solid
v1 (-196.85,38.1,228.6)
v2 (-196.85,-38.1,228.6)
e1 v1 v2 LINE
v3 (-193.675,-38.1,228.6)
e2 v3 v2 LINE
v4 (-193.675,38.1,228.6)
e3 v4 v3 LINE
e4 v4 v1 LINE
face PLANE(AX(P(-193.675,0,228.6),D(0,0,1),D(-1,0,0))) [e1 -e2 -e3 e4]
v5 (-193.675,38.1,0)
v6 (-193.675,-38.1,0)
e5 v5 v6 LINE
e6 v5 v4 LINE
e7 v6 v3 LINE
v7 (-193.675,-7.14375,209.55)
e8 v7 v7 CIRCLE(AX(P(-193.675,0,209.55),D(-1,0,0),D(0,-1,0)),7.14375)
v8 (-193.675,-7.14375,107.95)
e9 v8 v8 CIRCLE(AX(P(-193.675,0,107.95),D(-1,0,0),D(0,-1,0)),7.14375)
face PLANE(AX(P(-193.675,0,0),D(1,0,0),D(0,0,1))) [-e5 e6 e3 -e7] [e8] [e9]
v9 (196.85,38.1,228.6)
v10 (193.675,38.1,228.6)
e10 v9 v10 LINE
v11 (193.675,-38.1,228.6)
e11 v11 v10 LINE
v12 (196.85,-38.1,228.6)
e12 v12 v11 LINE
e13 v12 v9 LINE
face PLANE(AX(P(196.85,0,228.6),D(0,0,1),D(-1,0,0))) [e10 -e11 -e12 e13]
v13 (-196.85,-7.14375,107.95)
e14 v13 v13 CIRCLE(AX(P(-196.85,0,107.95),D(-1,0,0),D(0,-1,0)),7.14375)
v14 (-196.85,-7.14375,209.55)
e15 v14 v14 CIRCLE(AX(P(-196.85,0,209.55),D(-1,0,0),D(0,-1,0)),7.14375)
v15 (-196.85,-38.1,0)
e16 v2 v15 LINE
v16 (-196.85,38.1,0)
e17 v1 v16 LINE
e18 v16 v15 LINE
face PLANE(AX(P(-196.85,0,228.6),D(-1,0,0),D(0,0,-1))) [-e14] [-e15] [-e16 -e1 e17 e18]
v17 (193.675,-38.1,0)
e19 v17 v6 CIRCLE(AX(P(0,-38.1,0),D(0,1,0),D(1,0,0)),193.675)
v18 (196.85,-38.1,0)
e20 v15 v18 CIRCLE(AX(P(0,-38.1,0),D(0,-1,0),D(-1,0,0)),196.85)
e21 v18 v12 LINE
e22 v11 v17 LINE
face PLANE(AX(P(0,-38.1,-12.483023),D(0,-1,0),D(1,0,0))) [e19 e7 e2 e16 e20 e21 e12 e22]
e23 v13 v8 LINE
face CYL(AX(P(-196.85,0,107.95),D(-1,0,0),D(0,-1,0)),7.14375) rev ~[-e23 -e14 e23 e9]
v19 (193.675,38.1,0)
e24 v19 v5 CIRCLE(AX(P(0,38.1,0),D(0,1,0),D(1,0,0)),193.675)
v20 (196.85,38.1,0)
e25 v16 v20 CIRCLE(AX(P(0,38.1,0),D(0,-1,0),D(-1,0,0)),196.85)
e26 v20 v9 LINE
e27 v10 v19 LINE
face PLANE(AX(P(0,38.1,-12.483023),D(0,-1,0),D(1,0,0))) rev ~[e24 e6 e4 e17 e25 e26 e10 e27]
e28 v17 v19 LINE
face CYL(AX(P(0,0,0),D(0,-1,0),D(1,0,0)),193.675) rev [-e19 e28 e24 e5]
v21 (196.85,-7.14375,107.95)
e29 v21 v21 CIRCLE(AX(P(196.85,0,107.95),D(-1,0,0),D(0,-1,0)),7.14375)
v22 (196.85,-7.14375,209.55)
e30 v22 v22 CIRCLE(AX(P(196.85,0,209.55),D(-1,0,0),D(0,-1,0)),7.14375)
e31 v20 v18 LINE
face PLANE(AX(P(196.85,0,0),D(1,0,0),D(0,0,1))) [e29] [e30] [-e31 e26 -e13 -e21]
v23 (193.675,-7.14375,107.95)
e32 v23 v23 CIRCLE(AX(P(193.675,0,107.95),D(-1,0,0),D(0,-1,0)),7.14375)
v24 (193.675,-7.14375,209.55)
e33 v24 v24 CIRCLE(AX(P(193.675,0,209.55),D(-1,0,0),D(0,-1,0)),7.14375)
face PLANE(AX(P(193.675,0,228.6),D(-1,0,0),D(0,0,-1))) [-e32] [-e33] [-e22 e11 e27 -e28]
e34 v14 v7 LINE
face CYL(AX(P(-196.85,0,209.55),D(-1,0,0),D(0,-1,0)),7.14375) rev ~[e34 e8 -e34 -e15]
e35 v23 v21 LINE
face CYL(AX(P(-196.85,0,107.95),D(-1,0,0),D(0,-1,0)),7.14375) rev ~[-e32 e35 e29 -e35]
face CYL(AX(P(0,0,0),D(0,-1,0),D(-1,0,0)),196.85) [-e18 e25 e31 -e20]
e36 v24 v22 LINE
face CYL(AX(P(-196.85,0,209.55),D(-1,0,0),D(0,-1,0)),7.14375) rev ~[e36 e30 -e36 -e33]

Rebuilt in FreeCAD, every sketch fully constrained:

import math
import FreeCAD as App
import Part
import Sketcher
Q = App.Units.Quantity

doc = App.newDocument("Part")
params = doc.addObject("Spreadsheet::Sheet", "Params")
for row, (alias, value) in enumerate([
    ("sketch1_height", "9 in"),
    ("sketch1_radius", "7.75 in"),
    ("sketch1_radius2", "7.625 in"),
    ("pad1_length", "3 in"),
    ("sketch2_diameter", "0.5625 in"),
    ("pocket1_length", "20 in"),
], start=1):
    params.set(f"A{row}", alias)
    params.set(f"B{row}", "=" + value)
    params.setAlias(f"B{row}", alias)

body = doc.addObject("PartDesign::Body", "Body")

sketch1 = doc.addObject("Sketcher::SketchObject", "Sketch")
body.addObject(sketch1)
sketch1.AttachmentSupport = (doc.XZ_Plane, [""])
sketch1.MapMode = "FlatFace"
sketch1.addGeometry([
    Part.ArcOfCircle(Part.Circle(App.Vector(0, 0, 0), App.Vector(0, 0, 1), 193.7), math.radians(180), math.radians(360)),
    Part.LineSegment(App.Vector(-193.7, 0, 0), App.Vector(-193.7, 228.6, 0)),
    Part.LineSegment(App.Vector(-193.7, 228.6, 0), App.Vector(-196.8, 228.6, 0)),
    Part.LineSegment(App.Vector(-196.8, 228.6, 0), App.Vector(-196.8, 0, 0)),
    Part.ArcOfCircle(Part.Circle(App.Vector(0, 0, 0), App.Vector(0, 0, 1), 196.8), math.radians(180), math.radians(360)),
    Part.LineSegment(App.Vector(196.8, 0, 0), App.Vector(196.8, 228.6, 0)),
    Part.LineSegment(App.Vector(196.8, 228.6, 0), App.Vector(193.7, 228.6, 0)),
    Part.LineSegment(App.Vector(193.7, 228.6, 0), App.Vector(193.7, 0, 0)),
], False)
sketch1.addConstraint([
    Sketcher.Constraint("Tangent", 0, 1, 1, 1),
    Sketcher.Constraint("Coincident", 1, 2, 2, 1),
    Sketcher.Constraint("Coincident", 2, 2, 3, 1),
    Sketcher.Constraint("Tangent", 3, 2, 4, 1),
    Sketcher.Constraint("Tangent", 4, 2, 5, 1),
    Sketcher.Constraint("Coincident", 5, 2, 6, 1),
    Sketcher.Constraint("Coincident", 6, 2, 7, 1),
    Sketcher.Constraint("Tangent", 7, 2, 0, 2),
    Sketcher.Constraint("Vertical", 1),
    Sketcher.Constraint("Horizontal", 2),
    Sketcher.Constraint("Vertical", 3),
    Sketcher.Constraint("Vertical", 5),
    Sketcher.Constraint("Horizontal", 6),
    Sketcher.Constraint("Vertical", 7),
    Sketcher.Constraint("Coincident", 0, 3, -1, 1),
    Sketcher.Constraint("Coincident", 4, 3, -1, 1),
    Sketcher.Constraint("Horizontal", 2, 2, 5, 2),
    Sketcher.Constraint("DistanceY", 1, 1, 1, 2, Q("9 in")),
    Sketcher.Constraint("Radius", 4, Q("7.75 in")),
    Sketcher.Constraint("Radius", 0, Q("7.625 in")),
])
sketch1.setExpression("Constraints[17]", "Params.sketch1_height")
sketch1.setExpression("Constraints[18]", "Params.sketch1_radius")
sketch1.setExpression("Constraints[19]", "Params.sketch1_radius2")
pad1 = doc.addObject("PartDesign::Pad", "Pad")
body.addObject(pad1)
pad1.Profile = sketch1
pad1.setExpression("Length", "Params.pad1_length")
pad1.Midplane = True

sketch2 = doc.addObject("Sketcher::SketchObject", "Sketch001")
body.addObject(sketch2)
sketch2.AttachmentSupport = (doc.YZ_Plane, [""])
sketch2.MapMode = "FlatFace"
sketch2.AttachmentOffset = App.Placement(App.Vector(0, 0, -7.75 * 25.4), App.Rotation())
sketch2.addGeometry([
    Part.Circle(App.Vector(0, 210, 0), App.Vector(0, 0, 1), 7),
    Part.Circle(App.Vector(0, 108, 0), App.Vector(0, 0, 1), 7),
], False)
sketch2.addConstraint([
    Sketcher.Constraint("Equal", 0, 1),
    Sketcher.Constraint("PointOnObject", 0, 3, -2),
    Sketcher.Constraint("PointOnObject", 1, 3, -2),
    Sketcher.Constraint("Diameter", 0, Q("0.5625 in")),
    Sketcher.Constraint("DistanceY", 1, 3, 0, 3, Q("4 in")),
    Sketcher.Constraint("DistanceY", -1, 1, 0, 3, Q("8.25 in")),
])
sketch2.setExpression("Constraints[3]", "Params.sketch2_diameter")
pocket1 = doc.addObject("PartDesign::Pocket", "Pocket")
body.addObject(pocket1)
pocket1.Profile = sketch2
pocket1.setExpression("Length", "Params.pocket1_length")
pocket1.Reversed = True

doc.recompute()
